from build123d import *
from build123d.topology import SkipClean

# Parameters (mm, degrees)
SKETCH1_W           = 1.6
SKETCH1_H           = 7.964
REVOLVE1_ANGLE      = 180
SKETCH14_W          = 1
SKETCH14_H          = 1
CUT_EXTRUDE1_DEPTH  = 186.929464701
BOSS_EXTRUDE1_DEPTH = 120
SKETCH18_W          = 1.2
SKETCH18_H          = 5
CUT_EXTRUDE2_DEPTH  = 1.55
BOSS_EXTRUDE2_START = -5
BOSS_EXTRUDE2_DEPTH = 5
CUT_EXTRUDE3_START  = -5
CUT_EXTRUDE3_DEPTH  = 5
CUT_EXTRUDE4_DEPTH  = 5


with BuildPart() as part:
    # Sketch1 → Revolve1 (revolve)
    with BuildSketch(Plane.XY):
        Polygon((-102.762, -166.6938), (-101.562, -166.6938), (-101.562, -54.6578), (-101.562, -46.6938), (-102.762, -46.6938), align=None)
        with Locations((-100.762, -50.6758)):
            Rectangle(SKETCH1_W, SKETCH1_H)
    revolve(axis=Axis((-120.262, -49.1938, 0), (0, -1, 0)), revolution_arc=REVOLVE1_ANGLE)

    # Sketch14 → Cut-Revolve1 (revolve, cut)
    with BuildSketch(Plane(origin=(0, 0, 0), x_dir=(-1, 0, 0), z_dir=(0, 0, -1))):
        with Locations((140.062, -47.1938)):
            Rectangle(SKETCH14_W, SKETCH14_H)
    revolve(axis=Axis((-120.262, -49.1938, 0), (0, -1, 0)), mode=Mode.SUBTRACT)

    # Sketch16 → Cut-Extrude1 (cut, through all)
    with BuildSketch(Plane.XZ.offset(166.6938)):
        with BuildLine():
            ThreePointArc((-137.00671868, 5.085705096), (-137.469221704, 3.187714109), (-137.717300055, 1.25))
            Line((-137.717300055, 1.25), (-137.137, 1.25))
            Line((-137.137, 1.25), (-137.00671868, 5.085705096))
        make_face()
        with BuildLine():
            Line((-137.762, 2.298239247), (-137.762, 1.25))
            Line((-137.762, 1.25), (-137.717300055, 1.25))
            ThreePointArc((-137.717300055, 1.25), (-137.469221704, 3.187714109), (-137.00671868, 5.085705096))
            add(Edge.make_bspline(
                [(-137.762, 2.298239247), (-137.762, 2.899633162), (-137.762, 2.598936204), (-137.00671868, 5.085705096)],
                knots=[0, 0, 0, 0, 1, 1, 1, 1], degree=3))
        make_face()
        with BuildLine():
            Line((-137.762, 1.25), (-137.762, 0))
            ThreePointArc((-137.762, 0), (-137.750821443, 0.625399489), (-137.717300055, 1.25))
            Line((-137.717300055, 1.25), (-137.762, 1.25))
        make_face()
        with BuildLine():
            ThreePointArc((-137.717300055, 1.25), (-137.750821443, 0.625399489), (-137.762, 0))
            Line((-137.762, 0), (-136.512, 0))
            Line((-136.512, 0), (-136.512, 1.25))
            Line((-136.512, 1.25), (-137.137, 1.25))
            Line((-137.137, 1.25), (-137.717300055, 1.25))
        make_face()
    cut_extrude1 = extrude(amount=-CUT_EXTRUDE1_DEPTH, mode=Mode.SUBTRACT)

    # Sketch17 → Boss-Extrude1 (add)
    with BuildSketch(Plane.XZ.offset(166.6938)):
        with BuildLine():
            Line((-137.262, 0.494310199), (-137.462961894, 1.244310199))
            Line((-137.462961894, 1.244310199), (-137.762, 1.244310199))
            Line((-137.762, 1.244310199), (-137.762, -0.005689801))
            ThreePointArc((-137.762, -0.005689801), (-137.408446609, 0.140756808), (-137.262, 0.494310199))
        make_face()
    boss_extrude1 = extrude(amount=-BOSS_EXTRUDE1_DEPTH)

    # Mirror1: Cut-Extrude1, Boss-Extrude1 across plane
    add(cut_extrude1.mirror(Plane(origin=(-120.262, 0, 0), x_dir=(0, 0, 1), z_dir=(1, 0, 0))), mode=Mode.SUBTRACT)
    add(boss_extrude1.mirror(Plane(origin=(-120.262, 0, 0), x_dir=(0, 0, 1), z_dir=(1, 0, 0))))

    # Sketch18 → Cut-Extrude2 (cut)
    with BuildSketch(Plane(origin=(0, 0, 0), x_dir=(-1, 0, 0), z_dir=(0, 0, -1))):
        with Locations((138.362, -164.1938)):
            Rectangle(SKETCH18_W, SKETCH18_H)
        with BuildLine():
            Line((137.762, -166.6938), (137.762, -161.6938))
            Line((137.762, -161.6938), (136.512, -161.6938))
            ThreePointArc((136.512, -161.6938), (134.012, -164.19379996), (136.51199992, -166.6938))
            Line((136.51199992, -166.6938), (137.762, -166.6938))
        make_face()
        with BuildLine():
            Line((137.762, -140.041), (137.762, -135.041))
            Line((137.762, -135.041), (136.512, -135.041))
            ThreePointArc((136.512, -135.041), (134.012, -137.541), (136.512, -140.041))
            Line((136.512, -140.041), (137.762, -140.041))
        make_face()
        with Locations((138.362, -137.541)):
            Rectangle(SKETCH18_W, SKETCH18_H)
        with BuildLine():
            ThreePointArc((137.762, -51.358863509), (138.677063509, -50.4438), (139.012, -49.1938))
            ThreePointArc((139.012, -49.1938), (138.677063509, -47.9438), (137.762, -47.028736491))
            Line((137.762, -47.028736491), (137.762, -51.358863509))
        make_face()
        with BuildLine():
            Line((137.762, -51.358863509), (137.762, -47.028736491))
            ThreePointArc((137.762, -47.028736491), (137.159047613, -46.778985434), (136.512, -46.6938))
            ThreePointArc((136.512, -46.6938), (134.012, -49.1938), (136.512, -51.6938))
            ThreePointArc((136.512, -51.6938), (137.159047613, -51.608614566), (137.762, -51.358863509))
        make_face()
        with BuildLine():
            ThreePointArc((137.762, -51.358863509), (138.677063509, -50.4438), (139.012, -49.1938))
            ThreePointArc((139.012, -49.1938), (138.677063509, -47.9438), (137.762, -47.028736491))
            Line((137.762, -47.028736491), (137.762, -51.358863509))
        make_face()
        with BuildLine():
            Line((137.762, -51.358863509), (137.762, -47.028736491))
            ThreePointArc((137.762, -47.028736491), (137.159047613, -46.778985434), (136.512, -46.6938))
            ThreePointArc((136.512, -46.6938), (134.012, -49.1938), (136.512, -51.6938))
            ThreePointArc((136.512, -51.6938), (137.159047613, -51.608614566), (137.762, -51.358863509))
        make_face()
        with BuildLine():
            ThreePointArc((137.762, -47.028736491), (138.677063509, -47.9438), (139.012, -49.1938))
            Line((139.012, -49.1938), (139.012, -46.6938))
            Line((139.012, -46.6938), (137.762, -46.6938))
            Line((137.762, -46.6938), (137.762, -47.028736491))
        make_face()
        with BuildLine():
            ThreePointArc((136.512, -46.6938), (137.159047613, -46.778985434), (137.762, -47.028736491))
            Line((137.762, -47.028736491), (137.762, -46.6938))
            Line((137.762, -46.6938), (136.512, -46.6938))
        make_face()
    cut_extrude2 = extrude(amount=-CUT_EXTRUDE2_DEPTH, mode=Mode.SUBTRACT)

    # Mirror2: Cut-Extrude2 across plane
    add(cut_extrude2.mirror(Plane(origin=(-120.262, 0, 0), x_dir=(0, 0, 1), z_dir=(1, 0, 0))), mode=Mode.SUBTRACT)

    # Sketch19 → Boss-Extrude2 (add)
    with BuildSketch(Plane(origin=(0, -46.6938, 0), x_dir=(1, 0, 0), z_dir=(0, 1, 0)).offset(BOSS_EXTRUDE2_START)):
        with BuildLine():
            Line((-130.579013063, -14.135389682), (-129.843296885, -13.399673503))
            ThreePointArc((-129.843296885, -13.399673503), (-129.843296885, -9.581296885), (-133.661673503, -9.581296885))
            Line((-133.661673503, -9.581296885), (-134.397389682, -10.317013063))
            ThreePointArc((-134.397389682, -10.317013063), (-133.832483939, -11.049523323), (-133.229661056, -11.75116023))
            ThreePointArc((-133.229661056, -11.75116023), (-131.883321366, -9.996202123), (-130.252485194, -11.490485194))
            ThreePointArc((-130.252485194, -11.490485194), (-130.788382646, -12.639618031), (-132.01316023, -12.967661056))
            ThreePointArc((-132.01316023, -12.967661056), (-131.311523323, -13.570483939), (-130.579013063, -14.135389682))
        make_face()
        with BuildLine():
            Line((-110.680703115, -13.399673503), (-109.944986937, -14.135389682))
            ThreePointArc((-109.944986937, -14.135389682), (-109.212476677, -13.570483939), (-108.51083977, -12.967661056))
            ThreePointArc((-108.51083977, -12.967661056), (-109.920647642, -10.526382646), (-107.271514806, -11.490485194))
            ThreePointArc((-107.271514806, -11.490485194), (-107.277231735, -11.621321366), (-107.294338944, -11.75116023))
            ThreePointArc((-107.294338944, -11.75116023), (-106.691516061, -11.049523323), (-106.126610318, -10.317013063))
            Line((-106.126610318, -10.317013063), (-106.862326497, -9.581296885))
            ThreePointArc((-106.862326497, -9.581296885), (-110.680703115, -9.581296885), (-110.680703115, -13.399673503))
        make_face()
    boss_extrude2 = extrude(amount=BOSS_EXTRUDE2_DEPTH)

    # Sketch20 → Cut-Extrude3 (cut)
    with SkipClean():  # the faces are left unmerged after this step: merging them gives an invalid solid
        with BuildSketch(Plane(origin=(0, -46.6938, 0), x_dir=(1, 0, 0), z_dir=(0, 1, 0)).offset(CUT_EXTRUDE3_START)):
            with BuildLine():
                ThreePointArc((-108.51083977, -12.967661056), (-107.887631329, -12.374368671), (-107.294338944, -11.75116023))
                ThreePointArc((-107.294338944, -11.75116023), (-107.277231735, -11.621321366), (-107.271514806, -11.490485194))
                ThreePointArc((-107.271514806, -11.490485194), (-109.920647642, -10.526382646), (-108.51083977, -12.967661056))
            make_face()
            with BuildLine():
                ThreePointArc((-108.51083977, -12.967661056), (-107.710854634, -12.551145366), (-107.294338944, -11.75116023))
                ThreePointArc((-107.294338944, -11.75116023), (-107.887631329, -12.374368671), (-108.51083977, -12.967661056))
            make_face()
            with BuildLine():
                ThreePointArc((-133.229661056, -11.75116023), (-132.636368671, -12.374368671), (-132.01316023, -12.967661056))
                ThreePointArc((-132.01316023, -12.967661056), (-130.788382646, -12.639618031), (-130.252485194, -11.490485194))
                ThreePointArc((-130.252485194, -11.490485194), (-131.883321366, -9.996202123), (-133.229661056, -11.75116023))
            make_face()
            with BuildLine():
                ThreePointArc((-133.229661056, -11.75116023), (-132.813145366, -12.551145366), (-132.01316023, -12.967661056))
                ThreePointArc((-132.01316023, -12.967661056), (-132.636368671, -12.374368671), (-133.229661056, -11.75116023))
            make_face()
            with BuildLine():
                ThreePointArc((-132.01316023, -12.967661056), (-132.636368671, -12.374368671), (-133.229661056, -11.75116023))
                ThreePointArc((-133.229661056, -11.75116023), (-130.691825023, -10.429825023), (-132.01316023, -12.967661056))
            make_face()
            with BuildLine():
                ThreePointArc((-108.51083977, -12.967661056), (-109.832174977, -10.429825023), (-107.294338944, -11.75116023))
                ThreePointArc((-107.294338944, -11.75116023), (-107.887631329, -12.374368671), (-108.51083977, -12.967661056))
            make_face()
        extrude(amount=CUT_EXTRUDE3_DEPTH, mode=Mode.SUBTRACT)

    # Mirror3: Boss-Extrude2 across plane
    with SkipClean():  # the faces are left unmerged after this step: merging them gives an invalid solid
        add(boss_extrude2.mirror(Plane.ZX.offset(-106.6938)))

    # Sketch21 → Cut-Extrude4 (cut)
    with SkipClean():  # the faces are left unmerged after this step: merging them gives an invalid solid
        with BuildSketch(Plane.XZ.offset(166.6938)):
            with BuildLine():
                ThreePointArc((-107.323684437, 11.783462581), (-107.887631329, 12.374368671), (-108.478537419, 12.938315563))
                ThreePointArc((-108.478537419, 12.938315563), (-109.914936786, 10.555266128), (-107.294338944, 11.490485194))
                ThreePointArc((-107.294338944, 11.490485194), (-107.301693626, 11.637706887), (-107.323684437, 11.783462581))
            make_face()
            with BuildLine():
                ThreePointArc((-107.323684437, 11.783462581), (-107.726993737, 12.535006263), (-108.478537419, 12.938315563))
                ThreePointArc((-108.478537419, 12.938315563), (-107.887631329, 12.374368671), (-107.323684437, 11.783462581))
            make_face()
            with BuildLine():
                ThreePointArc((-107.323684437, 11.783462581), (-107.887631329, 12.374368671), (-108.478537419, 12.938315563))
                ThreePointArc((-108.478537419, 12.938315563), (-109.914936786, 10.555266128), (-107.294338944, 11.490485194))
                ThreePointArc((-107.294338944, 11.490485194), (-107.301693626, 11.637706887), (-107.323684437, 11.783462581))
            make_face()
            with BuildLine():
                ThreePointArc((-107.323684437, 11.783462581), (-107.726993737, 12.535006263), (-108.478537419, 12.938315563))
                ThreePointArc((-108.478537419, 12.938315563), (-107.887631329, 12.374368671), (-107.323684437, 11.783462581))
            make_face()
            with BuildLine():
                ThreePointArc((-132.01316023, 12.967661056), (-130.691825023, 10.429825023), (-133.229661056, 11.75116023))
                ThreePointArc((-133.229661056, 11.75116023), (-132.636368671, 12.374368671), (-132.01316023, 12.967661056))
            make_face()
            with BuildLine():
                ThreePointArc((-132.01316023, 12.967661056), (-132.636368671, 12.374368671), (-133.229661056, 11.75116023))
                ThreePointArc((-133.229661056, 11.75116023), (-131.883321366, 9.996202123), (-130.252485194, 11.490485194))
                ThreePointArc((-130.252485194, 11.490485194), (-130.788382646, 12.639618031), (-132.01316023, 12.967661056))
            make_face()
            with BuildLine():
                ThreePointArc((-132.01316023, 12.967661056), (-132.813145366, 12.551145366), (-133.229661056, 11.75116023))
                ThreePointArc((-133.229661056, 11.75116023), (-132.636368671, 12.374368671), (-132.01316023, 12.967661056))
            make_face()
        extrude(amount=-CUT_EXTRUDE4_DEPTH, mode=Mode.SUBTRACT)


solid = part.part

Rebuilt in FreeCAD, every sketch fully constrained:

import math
import FreeCAD as App
import Part
import Sketcher
from FreeCAD import Vector
Q = App.Units.Quantity


def add_polygon(sketch, points):
    """Adds a closed chain of lines whose ends are joined by coincident constraints."""
    first, n = sketch.GeometryCount, len(points)
    for a, b in zip(points, points[1:] + points[:1]):
        sketch.addGeometry(Part.LineSegment(App.Vector(*a, 0), App.Vector(*b, 0)), False)
    for i in range(n):
        sketch.addConstraint(Sketcher.Constraint("Coincident", first + i, 2, first + (i + 1) % n, 1))

doc = App.newDocument("Part")
body = doc.addObject("PartDesign::Body", "Body")

sketch1 = body.newObject("Sketcher::SketchObject", "Sketch")
sketch1.AttachmentSupport = (doc.getObject("XY_Plane"), [""])
sketch1.MapMode = "FlatFace"
add_polygon(sketch1, [(-102.8, -166.7), (-101.6, -166.7), (-101.6, -54.7), (-100, -54.7), (-100, -46.7), (-102.8, -46.7)])
sketch1.addGeometry(Part.LineSegment(Vector(-120.3, -46.7, 0), Vector(-120.3, -166.7, 0)), True)
sketch1.addConstraint(Sketcher.Constraint("Horizontal", 0))
sketch1.addConstraint(Sketcher.Constraint("Vertical", 1))
sketch1.addConstraint(Sketcher.Constraint("Horizontal", 2))
sketch1.addConstraint(Sketcher.Constraint("Vertical", 3))
sketch1.addConstraint(Sketcher.Constraint("Horizontal", 4))
sketch1.addConstraint(Sketcher.Constraint("Vertical", 5))
sketch1.addConstraint(Sketcher.Constraint("Vertical", 6))
sketch1.addConstraint(Sketcher.Constraint("Horizontal", 4, 2, 6, 1))
sketch1.addConstraint(Sketcher.Constraint("Horizontal", 5, 2, 6, 2))
sketch1.addConstraint(Sketcher.Constraint("DistanceY", 5, 2, 5, 1, 120.0))
sketch1.addConstraint(Sketcher.Constraint("DistanceX", 0, 1, 0, 2, 1.2))
sketch1.addConstraint(Sketcher.Constraint("DistanceX", 2, 1, 2, 2, 1.6))
sketch1.addConstraint(Sketcher.Constraint("DistanceX", 6, 1, 4, 2, 17.5))
sketch1.addConstraint(Sketcher.Constraint("DistanceY", 1, 1, 1, 2, 112.036))
sketch1.addConstraint(Sketcher.Constraint("DistanceX", 0, 2, -1, 1, 101.562))
sketch1.addConstraint(Sketcher.Constraint("DistanceY", 0, 2, -1, 1, 166.6938))
revolution = body.newObject("PartDesign::Revolution", "Revolution")
revolution.Profile = sketch1
revolution.ReferenceAxis = (sketch1, ["Axis0"])
revolution.Angle = 180

sketch2 = body.newObject("Sketcher::SketchObject", "Sketch001")
sketch2.AttachmentSupport = (doc.getObject("XY_Plane"), [""])
sketch2.MapMode = "FlatFace"
add_polygon(sketch2, [(-139.6, -46.7), (-139.6, -47.7), (-140.6, -47.7), (-140.6, -46.7)])
sketch2.addGeometry(Part.LineSegment(Vector(-120.3, -46.7, 0), Vector(-120.3, -47.7, 0)), True)
sketch2.addConstraint(Sketcher.Constraint("Vertical", 0))
sketch2.addConstraint(Sketcher.Constraint("Horizontal", 1))
sketch2.addConstraint(Sketcher.Constraint("Vertical", 2))
sketch2.addConstraint(Sketcher.Constraint("Horizontal", 3))
sketch2.addConstraint(Sketcher.Constraint("Vertical", 4))
sketch2.addConstraint(Sketcher.Constraint("Horizontal", 3, 2, 4, 1))
sketch2.addConstraint(Sketcher.Constraint("Horizontal", 1, 2, 4, 2))
sketch2.addConstraint(Sketcher.Constraint("Equal", 3, 0))
sketch2.addConstraint(Sketcher.Constraint("DistanceX", 1, 2, 1, 1, 1.0))
sketch2.addConstraint(Sketcher.Constraint("DistanceX", 3, 2, 4, 1, 19.3))
sketch2.addConstraint(Sketcher.Constraint("DistanceX", 0, 2, -1, 1, 139.562))
sketch2.addConstraint(Sketcher.Constraint("DistanceY", 0, 2, -1, 1, 47.6938))
groove = body.newObject("PartDesign::Groove", "Groove")
groove.Profile = sketch2
groove.ReferenceAxis = (sketch2, ["Axis0"])
groove.Angle = 360

sketch3 = body.newObject("Sketcher::SketchObject", "Sketch002")
sketch3.AttachmentSupport = (doc.getObject("XZ_Plane"), [""])
sketch3.MapMode = "FlatFace"
sketch3.AttachmentOffset = App.Placement(Vector(0, 0, 166.6938), App.Rotation())
sketch3.addGeometry(Part.LineSegment(Vector(-137.137, 1.25, 0), Vector(-137.006719, 5.085705, 0)), False)
sketch3.addGeometry(Part.BSplineCurve([Vector(-137.762, 2.298239, 0), Vector(-137.762, 2.899633, 0), Vector(-137.762, 2.598936, 0), Vector(-137.006719, 5.085705, 0)], [4, 4], [0, 1], False, 3, [1, 1, 1, 1], False), False)
sketch3.addGeometry(Part.LineSegment(Vector(-137.762, 2.298239, 0), Vector(-137.762, 0, 0)), False)
sketch3.addGeometry(Part.LineSegment(Vector(-137.762, 0, 0), Vector(-136.512, 0, 0)), False)
sketch3.addGeometry(Part.LineSegment(Vector(-136.512, 0, 0), Vector(-136.512, 1.25, 0)), False)
sketch3.addGeometry(Part.LineSegment(Vector(-136.512, 1.25, 0), Vector(-137.137, 1.25, 0)), False)
sketch3.addConstraint(Sketcher.Constraint("Block", 1))
sketch3.addConstraint(Sketcher.Constraint("Coincident", 0, 2, 1, 2))
sketch3.addConstraint(Sketcher.Constraint("Coincident", 1, 1, 2, 1))
sketch3.addConstraint(Sketcher.Constraint("Coincident", 2, 2, 3, 1))
sketch3.addConstraint(Sketcher.Constraint("Coincident", 3, 2, 4, 1))
sketch3.addConstraint(Sketcher.Constraint("Coincident", 4, 2, 5, 1))
sketch3.addConstraint(Sketcher.Constraint("Coincident", 5, 2, 0, 1))
sketch3.addConstraint(Sketcher.Constraint("Vertical", 2))
sketch3.addConstraint(Sketcher.Constraint("Horizontal", 3))
sketch3.addConstraint(Sketcher.Constraint("Vertical", 4))
sketch3.addConstraint(Sketcher.Constraint("Horizontal", 5))
sketch3.addConstraint(Sketcher.Constraint("PointOnObject", 2, 2, -1))
sketch3.addConstraint(Sketcher.Constraint("Equal", 3, 4))
sketch3.addConstraint(Sketcher.Constraint("DistanceX", 3, 1, 3, 2, 1.25))
sketch3.addConstraint(Sketcher.Constraint("DistanceX", 5, 2, 5, 1, 0.625))
pocket1 = body.newObject("PartDesign::Pocket", "Pocket")
pocket1.Profile = sketch3
pocket1.Type = "ThroughAll"

sketch4 = body.newObject("Sketcher::SketchObject", "Sketch003")
sketch4.AttachmentSupport = (doc.getObject("XZ_Plane"), [""])
sketch4.MapMode = "FlatFace"
sketch4.AttachmentOffset = App.Placement(Vector(0, 0, 166.6938), App.Rotation())
sketch4.addGeometry(Part.LineSegment(Vector(-137.26, 0.49, 0), Vector(-137.46, 1.24, 0)), False)
sketch4.addGeometry(Part.LineSegment(Vector(-137.46, 1.24, 0), Vector(-137.76, 1.24, 0)), False)
sketch4.addGeometry(Part.LineSegment(Vector(-137.76, 1.24, 0), Vector(-137.76, -0.01, 0)), False)
sketch4.addGeometry(Part.ArcOfCircle(Part.Circle(Vector(-137.76, 0.49, 0), Vector(0, 0, 1), 0.5), math.radians(-90), math.radians(0)), False)
sketch4.addConstraint(Sketcher.Constraint("Coincident", 0, 2, 1, 1))
sketch4.addConstraint(Sketcher.Constraint("Coincident", 1, 2, 2, 1))
sketch4.addConstraint(Sketcher.Constraint("Coincident", 2, 2, 3, 1))
sketch4.addConstraint(Sketcher.Constraint("Coincident", 3, 2, 0, 1))
sketch4.addConstraint(Sketcher.Constraint("Horizontal", 1))
sketch4.addConstraint(Sketcher.Constraint("Vertical", 2))
sketch4.addConstraint(Sketcher.Constraint("Vertical", 3, 3, 1, 2))
sketch4.addConstraint(Sketcher.Constraint("Radius", 3, 0.5))
sketch4.addConstraint(Sketcher.Constraint("Angle", 0, Q("105 deg")))
sketch4.addConstraint(Sketcher.Constraint("DistanceY", 2, 2, 2, 1, 1.25))
sketch4.addConstraint(Sketcher.Constraint("DistanceY", 2, 2, 3, 2, 0.5))
sketch4.addConstraint(Sketcher.Constraint("DistanceX", 3, 3, -1, 1, 137.762))
sketch4.addConstraint(Sketcher.Constraint("DistanceY", -1, 1, 3, 3, 0.49431))
pad1 = body.newObject("PartDesign::Pad", "Pad")
pad1.Profile = sketch4
pad1.Length = 120
pad1.Reversed = True
doc.recompute()

datumplane = body.newObject("PartDesign::Plane", "DatumPlane")
datumplane.AttachmentSupport = (doc.getObject("YZ_Plane"), [""])
datumplane.MapMode = "FlatFace"
datumplane.AttachmentOffset = App.Placement(Vector(0, 0, -120.262), App.Rotation())
mirrored = body.newObject("PartDesign::Mirrored", "Mirrored")
mirrored.Originals = [pocket1, pad1]
mirrored.MirrorPlane = (datumplane, [""])
body.Tip = mirrored

sketch5 = body.newObject("Sketcher::SketchObject", "Sketch004")
sketch5.AttachmentSupport = (doc.getObject("XY_Plane"), [""])
sketch5.MapMode = "FlatFace"
sketch5.addGeometry(Part.LineSegment(Vector(-139, -166.7, 0), Vector(-139, -161.7, 0)), False)
sketch5.addGeometry(Part.LineSegment(Vector(-139, -161.7, 0), Vector(-136.5, -161.7, 0)), False)
sketch5.addGeometry(Part.ArcOfCircle(Part.Circle(Vector(-136.5, -164.2, 0), Vector(0, 0, 1), 2.5), math.radians(-90), math.radians(90)), False)
sketch5.addGeometry(Part.LineSegment(Vector(-136.5, -166.7, 0), Vector(-139, -166.7, 0)), False)
sketch5.addGeometry(Part.ArcOfCircle(Part.Circle(Vector(-136.5, -137.5, 0), Vector(0, 0, 1), 2.5), math.radians(-90), math.radians(90)), False)
sketch5.addGeometry(Part.LineSegment(Vector(-136.5, -140, 0), Vector(-139, -140, 0)), False)
sketch5.addGeometry(Part.LineSegment(Vector(-139, -140, 0), Vector(-139, -135, 0)), False)
sketch5.addGeometry(Part.LineSegment(Vector(-139, -135, 0), Vector(-136.5, -135, 0)), False)
sketch5.addGeometry(Part.ArcOfCircle(Part.Circle(Vector(-136.5, -49.2, 0), Vector(0, 0, 1), 2.5), math.radians(-180), math.radians(-120)), False)
sketch5.addGeometry(Part.LineSegment(Vector(-139, -49.2, 0), Vector(-139, -46.7, 0)), False)
sketch5.addGeometry(Part.LineSegment(Vector(-139, -46.7, 0), Vector(-136.5, -46.7, 0)), False)
sketch5.addGeometry(Part.ArcOfCircle(Part.Circle(Vector(-136.5, -49.2, 0), Vector(0, 0, 1), 2.5), math.radians(-90), math.radians(90)), False)
sketch5.addGeometry(Part.ArcOfCircle(Part.Circle(Vector(-136.5, -49.2, 0), Vector(0, 0, 1), 2.5), math.radians(-120), math.radians(-90)), False)
sketch5.addConstraint(Sketcher.Constraint("Coincident", 0, 2, 1, 1))
sketch5.addConstraint(Sketcher.Constraint("Tangent", 1, 2, 2, 2))
sketch5.addConstraint(Sketcher.Constraint("Tangent", 2, 1, 3, 1))
sketch5.addConstraint(Sketcher.Constraint("Coincident", 3, 2, 0, 1))
sketch5.addConstraint(Sketcher.Constraint("Tangent", 4, 1, 5, 1))
sketch5.addConstraint(Sketcher.Constraint("Coincident", 5, 2, 6, 1))
sketch5.addConstraint(Sketcher.Constraint("Coincident", 6, 2, 7, 1))
sketch5.addConstraint(Sketcher.Constraint("Tangent", 7, 2, 4, 2))
sketch5.addConstraint(Sketcher.Constraint("Tangent", 8, 1, 9, 1))
sketch5.addConstraint(Sketcher.Constraint("Coincident", 9, 2, 10, 1))
sketch5.addConstraint(Sketcher.Constraint("Tangent", 10, 2, 11, 2))
sketch5.addConstraint(Sketcher.Constraint("Tangent", 11, 1, 12, 2))
sketch5.addConstraint(Sketcher.Constraint("Tangent", 12, 1, 8, 2))
sketch5.addConstraint(Sketcher.Constraint("Vertical", 0))
sketch5.addConstraint(Sketcher.Constraint("Horizontal", 1))
sketch5.addConstraint(Sketcher.Constraint("Horizontal", 3))
sketch5.addConstraint(Sketcher.Constraint("Horizontal", 5))
sketch5.addConstraint(Sketcher.Constraint("Vertical", 6))
sketch5.addConstraint(Sketcher.Constraint("Horizontal", 7))
sketch5.addConstraint(Sketcher.Constraint("Vertical", 9))
sketch5.addConstraint(Sketcher.Constraint("Horizontal", 10))
sketch5.addConstraint(Sketcher.Constraint("Coincident", 11, 3, 8, 3))
sketch5.addConstraint(Sketcher.Constraint("Equal", 2, 4))
sketch5.addConstraint(Sketcher.Constraint("Equal", 4, 8))
sketch5.addConstraint(Sketcher.Constraint("Vertical", 2, 3, 4, 3))
sketch5.addConstraint(Sketcher.Constraint("Vertical", 4, 3, 8, 3))
sketch5.addConstraint(Sketcher.Constraint("Vertical", 3, 2, 5, 2))
sketch5.addConstraint(Sketcher.Constraint("Vertical", 10, 2, 11, 1))
sketch5.addConstraint(Sketcher.Constraint("Radius", 2, 2.5))
sketch5.addConstraint(Sketcher.Constraint("DistanceY", 2, 3, 8, 3, 115.0))
sketch5.addConstraint(Sketcher.Constraint("DistanceX", 1, 1, 1, 2, 2.45))
sketch5.addConstraint(Sketcher.Constraint("DistanceX", 12, 1, 11, 1, 1.25))
sketch5.addConstraint(Sketcher.Constraint("DistanceX", 2, 3, -1, 1, 136.512))
sketch5.addConstraint(Sketcher.Constraint("DistanceY", 4, 3, -1, 1, 137.541))
sketch5.addConstraint(Sketcher.Constraint("DistanceY", 2, 3, -1, 1, 164.1938))
pocket2 = body.newObject("PartDesign::Pocket", "Pocket001")
pocket2.Profile = sketch5
pocket2.Length = 1.55
pocket2.Reversed = True
doc.recompute()

datumplane2 = body.newObject("PartDesign::Plane", "DatumPlane001")
datumplane2.AttachmentSupport = (doc.getObject("YZ_Plane"), [""])
datumplane2.MapMode = "FlatFace"
datumplane2.AttachmentOffset = App.Placement(Vector(0, 0, -120.262), App.Rotation())
mirrored2 = body.newObject("PartDesign::Mirrored", "Mirrored001")
mirrored2.Originals = [pocket2]
mirrored2.MirrorPlane = (datumplane2, [""])
body.Tip = mirrored2

sketch6 = body.newObject("Sketcher::SketchObject", "Sketch005")
sketch6.AttachmentSupport = (doc.getObject("XZ_Plane"), [""])
sketch6.MapMode = "FlatFace"
sketch6.AttachmentOffset = App.Placement(Vector(0, 0, 51.6938), App.Rotation())
sketch6.addGeometry(Part.LineSegment(Vector(-130.58, 14.14, 0), Vector(-129.84, 13.4, 0)), False)
sketch6.addGeometry(Part.ArcOfCircle(Part.Circle(Vector(-131.75, 11.49, 0), Vector(0, 0, 1), 2.7), math.radians(-135), math.radians(45)), False)
sketch6.addGeometry(Part.LineSegment(Vector(-133.66, 9.58, 0), Vector(-134.4, 10.32, 0)), False)
sketch6.addGeometry(Part.ArcOfCircle(Part.Circle(Vector(-120.26, 0, 0), Vector(0, 0, 1), 17.5), math.radians(137.82), math.radians(143.88)), False)
sketch6.addGeometry(Part.ArcOfCircle(Part.Circle(Vector(-131.75, 11.49, 0), Vector(0, 0, 1), 1.5), math.radians(170), math.radians(360)), False)
sketch6.addGeometry(Part.ArcOfCircle(Part.Circle(Vector(-131.75, 11.49, 0), Vector(0, 0, 1), 1.5), math.radians(0), math.radians(100)), False)
sketch6.addGeometry(Part.ArcOfCircle(Part.Circle(Vector(-120.26, 0, 0), Vector(0, 0, 1), 17.5), math.radians(126.12), math.radians(132.18)), False)
sketch6.addGeometry(Part.LineSegment(Vector(-110.68, 13.4, 0), Vector(-109.94, 14.14, 0)), False)
sketch6.addGeometry(Part.ArcOfCircle(Part.Circle(Vector(-120.26, 0, 0), Vector(0, 0, 1), 17.5), math.radians(47.82), math.radians(53.88)), False)
sketch6.addGeometry(Part.ArcOfCircle(Part.Circle(Vector(-108.77, 11.49, 0), Vector(0, 0, 1), 1.5), math.radians(80), math.radians(360)), False)
sketch6.addGeometry(Part.ArcOfCircle(Part.Circle(Vector(-108.77, 11.49, 0), Vector(0, 0, 1), 1.5), math.radians(0), math.radians(10.01)), False)
sketch6.addGeometry(Part.ArcOfCircle(Part.Circle(Vector(-120.26, 0, 0), Vector(0, 0, 1), 17.5), math.radians(36.12), math.radians(42.18)), False)
sketch6.addGeometry(Part.LineSegment(Vector(-106.13, 10.32, 0), Vector(-106.86, 9.58, 0)), False)
sketch6.addGeometry(Part.ArcOfCircle(Part.Circle(Vector(-108.77, 11.49, 0), Vector(0, 0, 1), 2.7), math.radians(135), math.radians(315)), False)
sketch6.addConstraint(Sketcher.Constraint("Tangent", 0, 2, 1, 2))
sketch6.addConstraint(Sketcher.Constraint("Tangent", 1, 1, 2, 1))
sketch6.addConstraint(Sketcher.Constraint("Coincident", 2, 2, 3, 2))
sketch6.addConstraint(Sketcher.Constraint("Coincident", 3, 1, 4, 1))
sketch6.addConstraint(Sketcher.Constraint("Tangent", 4, 2, 5, 1))
sketch6.addConstraint(Sketcher.Constraint("Coincident", 5, 2, 6, 2))
sketch6.addConstraint(Sketcher.Constraint("Coincident", 6, 1, 0, 1))
sketch6.addConstraint(Sketcher.Constraint("Coincident", 7, 2, 8, 2))
sketch6.addConstraint(Sketcher.Constraint("Coincident", 8, 1, 9, 1))
sketch6.addConstraint(Sketcher.Constraint("Tangent", 9, 2, 10, 1))
sketch6.addConstraint(Sketcher.Constraint("Coincident", 10, 2, 11, 2))
sketch6.addConstraint(Sketcher.Constraint("Coincident", 11, 1, 12, 1))
sketch6.addConstraint(Sketcher.Constraint("Tangent", 12, 2, 13, 2))
sketch6.addConstraint(Sketcher.Constraint("Tangent", 13, 1, 7, 1))
sketch6.addConstraint(Sketcher.Constraint("Coincident", 4, 3, 1, 3))
sketch6.addConstraint(Sketcher.Constraint("Coincident", 6, 3, 3, 3))
sketch6.addConstraint(Sketcher.Constraint("Coincident", 8, 3, 3, 3))
sketch6.addConstraint(Sketcher.Constraint("Coincident", 11, 3, 3, 3))
sketch6.addConstraint(Sketcher.Constraint("Coincident", 13, 3, 9, 3))
sketch6.addConstraint(Sketcher.Constraint("Equal", 4, 5))
sketch6.addConstraint(Sketcher.Constraint("Equal", 3, 6))
sketch6.addConstraint(Sketcher.Constraint("Equal", 6, 8))
sketch6.addConstraint(Sketcher.Constraint("Equal", 5, 9))
sketch6.addConstraint(Sketcher.Constraint("Equal", 9, 10))
sketch6.addConstraint(Sketcher.Constraint("Equal", 8, 11))
sketch6.addConstraint(Sketcher.Constraint("Equal", 1, 13))
sketch6.addConstraint(Sketcher.Constraint("PointOnObject", 3, 3, -1))
sketch6.addConstraint(Sketcher.Constraint("Parallel", 0, 2))
sketch6.addConstraint(Sketcher.Constraint("Perpendicular", 2, 7))
sketch6.addConstraint(Sketcher.Constraint("Parallel", 7, 12))
sketch6.addConstraint(Sketcher.Constraint("Horizontal", 5, 3, 9, 3))
sketch6.addConstraint(Sketcher.Constraint("Horizontal", 13, 3, 4, 2))
sketch6.addConstraint(Sketcher.Constraint("Horizontal", 6, 1, 7, 2))
sketch6.addConstraint(Sketcher.Constraint("Horizontal", 5, 2, 8, 1))
sketch6.addConstraint(Sketcher.Constraint("Horizontal", 4, 2, 9, 2))
sketch6.addConstraint(Sketcher.Constraint("Equal", 0, 2))
sketch6.addConstraint(Sketcher.Constraint("Radius", 1, 2.7))
sketch6.addConstraint(Sketcher.Constraint("Radius", 3, 17.5))
sketch6.addConstraint(Sketcher.Constraint("Radius", 4, 1.5))
sketch6.addConstraint(Sketcher.Constraint("DistanceX", 3, 3, -1, 1, 120.262))
sketch6.addConstraint(Sketcher.Constraint("DistanceX", 3, 1, 5, 2, 1.216501))
pad2 = body.newObject("PartDesign::Pad", "Pad001")
pad2.Profile = sketch6
pad2.Length = 5
pad2.Reversed = True

sketch7 = body.newObject("Sketcher::SketchObject", "Sketch006")
sketch7.AttachmentSupport = (doc.getObject("XZ_Plane"), [""])
sketch7.MapMode = "FlatFace"
sketch7.AttachmentOffset = App.Placement(Vector(0, 0, 51.6938), App.Rotation())
sketch7.addGeometry(Part.ArcOfCircle(Part.Circle(Vector(-120.26, 0, 0), Vector(0, 0, 1), 17.5), math.radians(42.18), math.radians(47.82)), False)
sketch7.addGeometry(Part.ArcOfCircle(Part.Circle(Vector(-108.77, 11.49, 0), Vector(0, 0, 1), 1.5), math.radians(0), math.radians(10.01)), False)
sketch7.addGeometry(Part.ArcOfCircle(Part.Circle(Vector(-108.77, 11.49, 0), Vector(0, 0, 1), 1.5), math.radians(80), math.radians(360)), False)
sketch7.addGeometry(Part.ArcOfCircle(Part.Circle(Vector(-108.77, 11.49, 0), Vector(0, 0, 1), 1.5), math.radians(10), math.radians(80)), False)
sketch7.addGeometry(Part.ArcOfCircle(Part.Circle(Vector(-120.26, 0, 0), Vector(0, 0, 1), 17.5), math.radians(42.18), math.radians(47.82)), False)
sketch7.addGeometry(Part.ArcOfCircle(Part.Circle(Vector(-120.26, 0, 0), Vector(0, 0, 1), 17.5), math.radians(132.18), math.radians(137.82)), False)
sketch7.addGeometry(Part.ArcOfCircle(Part.Circle(Vector(-131.75, 11.49, 0), Vector(0, 0, 1), 1.5), math.radians(0), math.radians(100)), False)
sketch7.addGeometry(Part.ArcOfCircle(Part.Circle(Vector(-131.75, 11.49, 0), Vector(0, 0, 1), 1.5), math.radians(170), math.radians(360)), False)
sketch7.addGeometry(Part.ArcOfCircle(Part.Circle(Vector(-131.75, 11.49, 0), Vector(0, 0, 1), 1.5), math.radians(100), math.radians(170)), False)
sketch7.addGeometry(Part.ArcOfCircle(Part.Circle(Vector(-120.26, 0, 0), Vector(0, 0, 1), 17.5), math.radians(132.18), math.radians(137.82)), False)
sketch7.addConstraint(Sketcher.Constraint("Coincident", 0, 1, 1, 2))
sketch7.addConstraint(Sketcher.Constraint("Tangent", 1, 1, 2, 2))
sketch7.addConstraint(Sketcher.Constraint("Coincident", 2, 1, 0, 2))
sketch7.addConstraint(Sketcher.Constraint("Coincident", 3, 1, 4, 1))
sketch7.addConstraint(Sketcher.Constraint("Coincident", 4, 2, 3, 2))
sketch7.addConstraint(Sketcher.Constraint("Coincident", 5, 1, 6, 2))
sketch7.addConstraint(Sketcher.Constraint("Tangent", 6, 1, 7, 2))
sketch7.addConstraint(Sketcher.Constraint("Coincident", 7, 1, 5, 2))
sketch7.addConstraint(Sketcher.Constraint("Coincident", 8, 1, 9, 1))
sketch7.addConstraint(Sketcher.Constraint("Coincident", 9, 2, 8, 2))
sketch7.addConstraint(Sketcher.Constraint("Coincident", 3, 3, 1, 3))
sketch7.addConstraint(Sketcher.Constraint("Coincident", 4, 3, 0, 3))
sketch7.addConstraint(Sketcher.Constraint("Coincident", 5, 3, 0, 3))
sketch7.addConstraint(Sketcher.Constraint("Coincident", 8, 3, 6, 3))
sketch7.addConstraint(Sketcher.Constraint("Coincident", 9, 3, 0, 3))
sketch7.addConstraint(Sketcher.Constraint("Coincident", 3, 1, 0, 1))
sketch7.addConstraint(Sketcher.Constraint("Coincident", 8, 1, 5, 1))
sketch7.addConstraint(Sketcher.Constraint("Equal", 1, 2))
sketch7.addConstraint(Sketcher.Constraint("Equal", 4, 5))
sketch7.addConstraint(Sketcher.Constraint("Equal", 3, 6))
sketch7.addConstraint(Sketcher.Constraint("Equal", 6, 7))
sketch7.addConstraint(Sketcher.Constraint("PointOnObject", 0, 3, -1))
sketch7.addConstraint(Sketcher.Constraint("Horizontal", 3, 3, 6, 3))
sketch7.addConstraint(Sketcher.Constraint("Horizontal", 8, 3, 1, 1))
sketch7.addConstraint(Sketcher.Constraint("Horizontal", 4, 2, 5, 1))
sketch7.addConstraint(Sketcher.Constraint("Horizontal", 1, 1, 6, 1))
sketch7.addConstraint(Sketcher.Constraint("Radius", 0, 17.5))
sketch7.addConstraint(Sketcher.Constraint("Radius", 1, 1.5))
sketch7.addConstraint(Sketcher.Constraint("DistanceX", 0, 3, -1, 1, 120.262))
sketch7.addConstraint(Sketcher.Constraint("DistanceX", 2, 1, 0, 1, 1.216501))
sketch7.addConstraint(Sketcher.Constraint("DistanceY", 0, 1, 2, 1, 1.216501))
pocket3 = body.newObject("PartDesign::Pocket", "Pocket002")
pocket3.Profile = sketch7
pocket3.Length = 5
doc.recompute()

datumplane3 = body.newObject("PartDesign::Plane", "DatumPlane002")
datumplane3.AttachmentSupport = (doc.getObject("XZ_Plane"), [""])
datumplane3.MapMode = "FlatFace"
datumplane3.AttachmentOffset = App.Placement(Vector(0, 0, 106.6938), App.Rotation())
mirrored3 = body.newObject("PartDesign::Mirrored", "Mirrored002")
mirrored3.Originals = [pad2]
mirrored3.MirrorPlane = (datumplane3, [""])
body.Tip = mirrored3

sketch8 = body.newObject("Sketcher::SketchObject", "Sketch007")
sketch8.AttachmentSupport = (doc.getObject("XZ_Plane"), [""])
sketch8.MapMode = "FlatFace"
sketch8.AttachmentOffset = App.Placement(Vector(0, 0, 166.6938), App.Rotation())
sketch8.addGeometry(Part.ArcOfCircle(Part.Circle(Vector(-120.26, 0, 0), Vector(0, 0, 1), 17.5), math.radians(42.33), math.radians(47.67)), False)
sketch8.addGeometry(Part.ArcOfCircle(Part.Circle(Vector(-108.77, 11.49, 0), Vector(0, 0, 1), 1.48), math.radians(79), math.radians(360)), False)
sketch8.addGeometry(Part.ArcOfCircle(Part.Circle(Vector(-108.77, 11.49, 0), Vector(0, 0, 1), 1.48), math.radians(0), math.radians(11.44)), False)
sketch8.addGeometry(Part.ArcOfCircle(Part.Circle(Vector(-108.77, 11.49, 0), Vector(0, 0, 1), 1.48), math.radians(11), math.radians(79)), False)
sketch8.addGeometry(Part.ArcOfCircle(Part.Circle(Vector(-120.26, 0, 0), Vector(0, 0, 1), 17.5), math.radians(42.33), math.radians(47.67)), False)
sketch8.addGeometry(Part.ArcOfCircle(Part.Circle(Vector(-131.75, 11.49, 0), Vector(0, 0, 1), 1.5), math.radians(0), math.radians(100)), False)
sketch8.addGeometry(Part.ArcOfCircle(Part.Circle(Vector(-120.26, 0, 0), Vector(0, 0, 1), 17.5), math.radians(132.18), math.radians(137.82)), False)
sketch8.addGeometry(Part.ArcOfCircle(Part.Circle(Vector(-131.75, 11.49, 0), Vector(0, 0, 1), 1.5), math.radians(170), math.radians(360)), False)
sketch8.addGeometry(Part.ArcOfCircle(Part.Circle(Vector(-131.75, 11.49, 0), Vector(0, 0, 1), 1.5), math.radians(100), math.radians(170)), False)
sketch8.addGeometry(Part.ArcOfCircle(Part.Circle(Vector(-120.26, 0, 0), Vector(0, 0, 1), 17.5), math.radians(132.18), math.radians(137.82)), False)
sketch8.addConstraint(Sketcher.Constraint("Coincident", 0, 2, 1, 1))
sketch8.addConstraint(Sketcher.Constraint("Tangent", 1, 2, 2, 1))
sketch8.addConstraint(Sketcher.Constraint("Coincident", 2, 2, 0, 1))
sketch8.addConstraint(Sketcher.Constraint("Coincident", 3, 1, 4, 1))
sketch8.addConstraint(Sketcher.Constraint("Coincident", 4, 2, 3, 2))
sketch8.addConstraint(Sketcher.Constraint("Coincident", 5, 2, 6, 1))
sketch8.addConstraint(Sketcher.Constraint("Coincident", 6, 2, 7, 1))
sketch8.addConstraint(Sketcher.Constraint("Tangent", 7, 2, 5, 1))
sketch8.addConstraint(Sketcher.Constraint("Coincident", 8, 1, 9, 1))
sketch8.addConstraint(Sketcher.Constraint("Coincident", 9, 2, 8, 2))
sketch8.addConstraint(Sketcher.Constraint("Coincident", 3, 3, 1, 3))
sketch8.addConstraint(Sketcher.Constraint("Coincident", 4, 3, 0, 3))
sketch8.addConstraint(Sketcher.Constraint("Coincident", 6, 3, 0, 3))
sketch8.addConstraint(Sketcher.Constraint("Coincident", 8, 3, 5, 3))
sketch8.addConstraint(Sketcher.Constraint("Coincident", 9, 3, 0, 3))
sketch8.addConstraint(Sketcher.Constraint("Coincident", 3, 1, 2, 2))
sketch8.addConstraint(Sketcher.Constraint("Coincident", 8, 1, 5, 2))
sketch8.addConstraint(Sketcher.Constraint("Equal", 1, 2))
sketch8.addConstraint(Sketcher.Constraint("Equal", 4, 6))
sketch8.addConstraint(Sketcher.Constraint("Equal", 5, 7))
sketch8.addConstraint(Sketcher.Constraint("PointOnObject", 0, 3, -1))
sketch8.addConstraint(Sketcher.Constraint("Horizontal", 3, 3, 5, 3))
sketch8.addConstraint(Sketcher.Constraint("Horizontal", 8, 3, 1, 2))
sketch8.addConstraint(Sketcher.Constraint("Horizontal", 1, 2, 7, 2))
sketch8.addConstraint(Sketcher.Constraint("Radius", 0, 17.5))
sketch8.addConstraint(Sketcher.Constraint("Radius", 5, 1.5))
sketch8.addConstraint(Sketcher.Constraint("DistanceX", 0, 3, -1, 1, 120.262))
sketch8.addConstraint(Sketcher.Constraint("Radius", 1, 1.477176))
sketch8.addConstraint(Sketcher.Constraint("DistanceX", 0, 2, 1, 2, 1.184198))
sketch8.addConstraint(Sketcher.Constraint("DistanceX", 6, 2, 5, 2, 1.216501))
sketch8.addConstraint(Sketcher.Constraint("DistanceY", 6, 2, 5, 2, 1.216501))
pocket4 = body.newObject("PartDesign::Pocket", "Pocket003")
pocket4.Profile = sketch8
pocket4.Length = 5

doc.recompute()
